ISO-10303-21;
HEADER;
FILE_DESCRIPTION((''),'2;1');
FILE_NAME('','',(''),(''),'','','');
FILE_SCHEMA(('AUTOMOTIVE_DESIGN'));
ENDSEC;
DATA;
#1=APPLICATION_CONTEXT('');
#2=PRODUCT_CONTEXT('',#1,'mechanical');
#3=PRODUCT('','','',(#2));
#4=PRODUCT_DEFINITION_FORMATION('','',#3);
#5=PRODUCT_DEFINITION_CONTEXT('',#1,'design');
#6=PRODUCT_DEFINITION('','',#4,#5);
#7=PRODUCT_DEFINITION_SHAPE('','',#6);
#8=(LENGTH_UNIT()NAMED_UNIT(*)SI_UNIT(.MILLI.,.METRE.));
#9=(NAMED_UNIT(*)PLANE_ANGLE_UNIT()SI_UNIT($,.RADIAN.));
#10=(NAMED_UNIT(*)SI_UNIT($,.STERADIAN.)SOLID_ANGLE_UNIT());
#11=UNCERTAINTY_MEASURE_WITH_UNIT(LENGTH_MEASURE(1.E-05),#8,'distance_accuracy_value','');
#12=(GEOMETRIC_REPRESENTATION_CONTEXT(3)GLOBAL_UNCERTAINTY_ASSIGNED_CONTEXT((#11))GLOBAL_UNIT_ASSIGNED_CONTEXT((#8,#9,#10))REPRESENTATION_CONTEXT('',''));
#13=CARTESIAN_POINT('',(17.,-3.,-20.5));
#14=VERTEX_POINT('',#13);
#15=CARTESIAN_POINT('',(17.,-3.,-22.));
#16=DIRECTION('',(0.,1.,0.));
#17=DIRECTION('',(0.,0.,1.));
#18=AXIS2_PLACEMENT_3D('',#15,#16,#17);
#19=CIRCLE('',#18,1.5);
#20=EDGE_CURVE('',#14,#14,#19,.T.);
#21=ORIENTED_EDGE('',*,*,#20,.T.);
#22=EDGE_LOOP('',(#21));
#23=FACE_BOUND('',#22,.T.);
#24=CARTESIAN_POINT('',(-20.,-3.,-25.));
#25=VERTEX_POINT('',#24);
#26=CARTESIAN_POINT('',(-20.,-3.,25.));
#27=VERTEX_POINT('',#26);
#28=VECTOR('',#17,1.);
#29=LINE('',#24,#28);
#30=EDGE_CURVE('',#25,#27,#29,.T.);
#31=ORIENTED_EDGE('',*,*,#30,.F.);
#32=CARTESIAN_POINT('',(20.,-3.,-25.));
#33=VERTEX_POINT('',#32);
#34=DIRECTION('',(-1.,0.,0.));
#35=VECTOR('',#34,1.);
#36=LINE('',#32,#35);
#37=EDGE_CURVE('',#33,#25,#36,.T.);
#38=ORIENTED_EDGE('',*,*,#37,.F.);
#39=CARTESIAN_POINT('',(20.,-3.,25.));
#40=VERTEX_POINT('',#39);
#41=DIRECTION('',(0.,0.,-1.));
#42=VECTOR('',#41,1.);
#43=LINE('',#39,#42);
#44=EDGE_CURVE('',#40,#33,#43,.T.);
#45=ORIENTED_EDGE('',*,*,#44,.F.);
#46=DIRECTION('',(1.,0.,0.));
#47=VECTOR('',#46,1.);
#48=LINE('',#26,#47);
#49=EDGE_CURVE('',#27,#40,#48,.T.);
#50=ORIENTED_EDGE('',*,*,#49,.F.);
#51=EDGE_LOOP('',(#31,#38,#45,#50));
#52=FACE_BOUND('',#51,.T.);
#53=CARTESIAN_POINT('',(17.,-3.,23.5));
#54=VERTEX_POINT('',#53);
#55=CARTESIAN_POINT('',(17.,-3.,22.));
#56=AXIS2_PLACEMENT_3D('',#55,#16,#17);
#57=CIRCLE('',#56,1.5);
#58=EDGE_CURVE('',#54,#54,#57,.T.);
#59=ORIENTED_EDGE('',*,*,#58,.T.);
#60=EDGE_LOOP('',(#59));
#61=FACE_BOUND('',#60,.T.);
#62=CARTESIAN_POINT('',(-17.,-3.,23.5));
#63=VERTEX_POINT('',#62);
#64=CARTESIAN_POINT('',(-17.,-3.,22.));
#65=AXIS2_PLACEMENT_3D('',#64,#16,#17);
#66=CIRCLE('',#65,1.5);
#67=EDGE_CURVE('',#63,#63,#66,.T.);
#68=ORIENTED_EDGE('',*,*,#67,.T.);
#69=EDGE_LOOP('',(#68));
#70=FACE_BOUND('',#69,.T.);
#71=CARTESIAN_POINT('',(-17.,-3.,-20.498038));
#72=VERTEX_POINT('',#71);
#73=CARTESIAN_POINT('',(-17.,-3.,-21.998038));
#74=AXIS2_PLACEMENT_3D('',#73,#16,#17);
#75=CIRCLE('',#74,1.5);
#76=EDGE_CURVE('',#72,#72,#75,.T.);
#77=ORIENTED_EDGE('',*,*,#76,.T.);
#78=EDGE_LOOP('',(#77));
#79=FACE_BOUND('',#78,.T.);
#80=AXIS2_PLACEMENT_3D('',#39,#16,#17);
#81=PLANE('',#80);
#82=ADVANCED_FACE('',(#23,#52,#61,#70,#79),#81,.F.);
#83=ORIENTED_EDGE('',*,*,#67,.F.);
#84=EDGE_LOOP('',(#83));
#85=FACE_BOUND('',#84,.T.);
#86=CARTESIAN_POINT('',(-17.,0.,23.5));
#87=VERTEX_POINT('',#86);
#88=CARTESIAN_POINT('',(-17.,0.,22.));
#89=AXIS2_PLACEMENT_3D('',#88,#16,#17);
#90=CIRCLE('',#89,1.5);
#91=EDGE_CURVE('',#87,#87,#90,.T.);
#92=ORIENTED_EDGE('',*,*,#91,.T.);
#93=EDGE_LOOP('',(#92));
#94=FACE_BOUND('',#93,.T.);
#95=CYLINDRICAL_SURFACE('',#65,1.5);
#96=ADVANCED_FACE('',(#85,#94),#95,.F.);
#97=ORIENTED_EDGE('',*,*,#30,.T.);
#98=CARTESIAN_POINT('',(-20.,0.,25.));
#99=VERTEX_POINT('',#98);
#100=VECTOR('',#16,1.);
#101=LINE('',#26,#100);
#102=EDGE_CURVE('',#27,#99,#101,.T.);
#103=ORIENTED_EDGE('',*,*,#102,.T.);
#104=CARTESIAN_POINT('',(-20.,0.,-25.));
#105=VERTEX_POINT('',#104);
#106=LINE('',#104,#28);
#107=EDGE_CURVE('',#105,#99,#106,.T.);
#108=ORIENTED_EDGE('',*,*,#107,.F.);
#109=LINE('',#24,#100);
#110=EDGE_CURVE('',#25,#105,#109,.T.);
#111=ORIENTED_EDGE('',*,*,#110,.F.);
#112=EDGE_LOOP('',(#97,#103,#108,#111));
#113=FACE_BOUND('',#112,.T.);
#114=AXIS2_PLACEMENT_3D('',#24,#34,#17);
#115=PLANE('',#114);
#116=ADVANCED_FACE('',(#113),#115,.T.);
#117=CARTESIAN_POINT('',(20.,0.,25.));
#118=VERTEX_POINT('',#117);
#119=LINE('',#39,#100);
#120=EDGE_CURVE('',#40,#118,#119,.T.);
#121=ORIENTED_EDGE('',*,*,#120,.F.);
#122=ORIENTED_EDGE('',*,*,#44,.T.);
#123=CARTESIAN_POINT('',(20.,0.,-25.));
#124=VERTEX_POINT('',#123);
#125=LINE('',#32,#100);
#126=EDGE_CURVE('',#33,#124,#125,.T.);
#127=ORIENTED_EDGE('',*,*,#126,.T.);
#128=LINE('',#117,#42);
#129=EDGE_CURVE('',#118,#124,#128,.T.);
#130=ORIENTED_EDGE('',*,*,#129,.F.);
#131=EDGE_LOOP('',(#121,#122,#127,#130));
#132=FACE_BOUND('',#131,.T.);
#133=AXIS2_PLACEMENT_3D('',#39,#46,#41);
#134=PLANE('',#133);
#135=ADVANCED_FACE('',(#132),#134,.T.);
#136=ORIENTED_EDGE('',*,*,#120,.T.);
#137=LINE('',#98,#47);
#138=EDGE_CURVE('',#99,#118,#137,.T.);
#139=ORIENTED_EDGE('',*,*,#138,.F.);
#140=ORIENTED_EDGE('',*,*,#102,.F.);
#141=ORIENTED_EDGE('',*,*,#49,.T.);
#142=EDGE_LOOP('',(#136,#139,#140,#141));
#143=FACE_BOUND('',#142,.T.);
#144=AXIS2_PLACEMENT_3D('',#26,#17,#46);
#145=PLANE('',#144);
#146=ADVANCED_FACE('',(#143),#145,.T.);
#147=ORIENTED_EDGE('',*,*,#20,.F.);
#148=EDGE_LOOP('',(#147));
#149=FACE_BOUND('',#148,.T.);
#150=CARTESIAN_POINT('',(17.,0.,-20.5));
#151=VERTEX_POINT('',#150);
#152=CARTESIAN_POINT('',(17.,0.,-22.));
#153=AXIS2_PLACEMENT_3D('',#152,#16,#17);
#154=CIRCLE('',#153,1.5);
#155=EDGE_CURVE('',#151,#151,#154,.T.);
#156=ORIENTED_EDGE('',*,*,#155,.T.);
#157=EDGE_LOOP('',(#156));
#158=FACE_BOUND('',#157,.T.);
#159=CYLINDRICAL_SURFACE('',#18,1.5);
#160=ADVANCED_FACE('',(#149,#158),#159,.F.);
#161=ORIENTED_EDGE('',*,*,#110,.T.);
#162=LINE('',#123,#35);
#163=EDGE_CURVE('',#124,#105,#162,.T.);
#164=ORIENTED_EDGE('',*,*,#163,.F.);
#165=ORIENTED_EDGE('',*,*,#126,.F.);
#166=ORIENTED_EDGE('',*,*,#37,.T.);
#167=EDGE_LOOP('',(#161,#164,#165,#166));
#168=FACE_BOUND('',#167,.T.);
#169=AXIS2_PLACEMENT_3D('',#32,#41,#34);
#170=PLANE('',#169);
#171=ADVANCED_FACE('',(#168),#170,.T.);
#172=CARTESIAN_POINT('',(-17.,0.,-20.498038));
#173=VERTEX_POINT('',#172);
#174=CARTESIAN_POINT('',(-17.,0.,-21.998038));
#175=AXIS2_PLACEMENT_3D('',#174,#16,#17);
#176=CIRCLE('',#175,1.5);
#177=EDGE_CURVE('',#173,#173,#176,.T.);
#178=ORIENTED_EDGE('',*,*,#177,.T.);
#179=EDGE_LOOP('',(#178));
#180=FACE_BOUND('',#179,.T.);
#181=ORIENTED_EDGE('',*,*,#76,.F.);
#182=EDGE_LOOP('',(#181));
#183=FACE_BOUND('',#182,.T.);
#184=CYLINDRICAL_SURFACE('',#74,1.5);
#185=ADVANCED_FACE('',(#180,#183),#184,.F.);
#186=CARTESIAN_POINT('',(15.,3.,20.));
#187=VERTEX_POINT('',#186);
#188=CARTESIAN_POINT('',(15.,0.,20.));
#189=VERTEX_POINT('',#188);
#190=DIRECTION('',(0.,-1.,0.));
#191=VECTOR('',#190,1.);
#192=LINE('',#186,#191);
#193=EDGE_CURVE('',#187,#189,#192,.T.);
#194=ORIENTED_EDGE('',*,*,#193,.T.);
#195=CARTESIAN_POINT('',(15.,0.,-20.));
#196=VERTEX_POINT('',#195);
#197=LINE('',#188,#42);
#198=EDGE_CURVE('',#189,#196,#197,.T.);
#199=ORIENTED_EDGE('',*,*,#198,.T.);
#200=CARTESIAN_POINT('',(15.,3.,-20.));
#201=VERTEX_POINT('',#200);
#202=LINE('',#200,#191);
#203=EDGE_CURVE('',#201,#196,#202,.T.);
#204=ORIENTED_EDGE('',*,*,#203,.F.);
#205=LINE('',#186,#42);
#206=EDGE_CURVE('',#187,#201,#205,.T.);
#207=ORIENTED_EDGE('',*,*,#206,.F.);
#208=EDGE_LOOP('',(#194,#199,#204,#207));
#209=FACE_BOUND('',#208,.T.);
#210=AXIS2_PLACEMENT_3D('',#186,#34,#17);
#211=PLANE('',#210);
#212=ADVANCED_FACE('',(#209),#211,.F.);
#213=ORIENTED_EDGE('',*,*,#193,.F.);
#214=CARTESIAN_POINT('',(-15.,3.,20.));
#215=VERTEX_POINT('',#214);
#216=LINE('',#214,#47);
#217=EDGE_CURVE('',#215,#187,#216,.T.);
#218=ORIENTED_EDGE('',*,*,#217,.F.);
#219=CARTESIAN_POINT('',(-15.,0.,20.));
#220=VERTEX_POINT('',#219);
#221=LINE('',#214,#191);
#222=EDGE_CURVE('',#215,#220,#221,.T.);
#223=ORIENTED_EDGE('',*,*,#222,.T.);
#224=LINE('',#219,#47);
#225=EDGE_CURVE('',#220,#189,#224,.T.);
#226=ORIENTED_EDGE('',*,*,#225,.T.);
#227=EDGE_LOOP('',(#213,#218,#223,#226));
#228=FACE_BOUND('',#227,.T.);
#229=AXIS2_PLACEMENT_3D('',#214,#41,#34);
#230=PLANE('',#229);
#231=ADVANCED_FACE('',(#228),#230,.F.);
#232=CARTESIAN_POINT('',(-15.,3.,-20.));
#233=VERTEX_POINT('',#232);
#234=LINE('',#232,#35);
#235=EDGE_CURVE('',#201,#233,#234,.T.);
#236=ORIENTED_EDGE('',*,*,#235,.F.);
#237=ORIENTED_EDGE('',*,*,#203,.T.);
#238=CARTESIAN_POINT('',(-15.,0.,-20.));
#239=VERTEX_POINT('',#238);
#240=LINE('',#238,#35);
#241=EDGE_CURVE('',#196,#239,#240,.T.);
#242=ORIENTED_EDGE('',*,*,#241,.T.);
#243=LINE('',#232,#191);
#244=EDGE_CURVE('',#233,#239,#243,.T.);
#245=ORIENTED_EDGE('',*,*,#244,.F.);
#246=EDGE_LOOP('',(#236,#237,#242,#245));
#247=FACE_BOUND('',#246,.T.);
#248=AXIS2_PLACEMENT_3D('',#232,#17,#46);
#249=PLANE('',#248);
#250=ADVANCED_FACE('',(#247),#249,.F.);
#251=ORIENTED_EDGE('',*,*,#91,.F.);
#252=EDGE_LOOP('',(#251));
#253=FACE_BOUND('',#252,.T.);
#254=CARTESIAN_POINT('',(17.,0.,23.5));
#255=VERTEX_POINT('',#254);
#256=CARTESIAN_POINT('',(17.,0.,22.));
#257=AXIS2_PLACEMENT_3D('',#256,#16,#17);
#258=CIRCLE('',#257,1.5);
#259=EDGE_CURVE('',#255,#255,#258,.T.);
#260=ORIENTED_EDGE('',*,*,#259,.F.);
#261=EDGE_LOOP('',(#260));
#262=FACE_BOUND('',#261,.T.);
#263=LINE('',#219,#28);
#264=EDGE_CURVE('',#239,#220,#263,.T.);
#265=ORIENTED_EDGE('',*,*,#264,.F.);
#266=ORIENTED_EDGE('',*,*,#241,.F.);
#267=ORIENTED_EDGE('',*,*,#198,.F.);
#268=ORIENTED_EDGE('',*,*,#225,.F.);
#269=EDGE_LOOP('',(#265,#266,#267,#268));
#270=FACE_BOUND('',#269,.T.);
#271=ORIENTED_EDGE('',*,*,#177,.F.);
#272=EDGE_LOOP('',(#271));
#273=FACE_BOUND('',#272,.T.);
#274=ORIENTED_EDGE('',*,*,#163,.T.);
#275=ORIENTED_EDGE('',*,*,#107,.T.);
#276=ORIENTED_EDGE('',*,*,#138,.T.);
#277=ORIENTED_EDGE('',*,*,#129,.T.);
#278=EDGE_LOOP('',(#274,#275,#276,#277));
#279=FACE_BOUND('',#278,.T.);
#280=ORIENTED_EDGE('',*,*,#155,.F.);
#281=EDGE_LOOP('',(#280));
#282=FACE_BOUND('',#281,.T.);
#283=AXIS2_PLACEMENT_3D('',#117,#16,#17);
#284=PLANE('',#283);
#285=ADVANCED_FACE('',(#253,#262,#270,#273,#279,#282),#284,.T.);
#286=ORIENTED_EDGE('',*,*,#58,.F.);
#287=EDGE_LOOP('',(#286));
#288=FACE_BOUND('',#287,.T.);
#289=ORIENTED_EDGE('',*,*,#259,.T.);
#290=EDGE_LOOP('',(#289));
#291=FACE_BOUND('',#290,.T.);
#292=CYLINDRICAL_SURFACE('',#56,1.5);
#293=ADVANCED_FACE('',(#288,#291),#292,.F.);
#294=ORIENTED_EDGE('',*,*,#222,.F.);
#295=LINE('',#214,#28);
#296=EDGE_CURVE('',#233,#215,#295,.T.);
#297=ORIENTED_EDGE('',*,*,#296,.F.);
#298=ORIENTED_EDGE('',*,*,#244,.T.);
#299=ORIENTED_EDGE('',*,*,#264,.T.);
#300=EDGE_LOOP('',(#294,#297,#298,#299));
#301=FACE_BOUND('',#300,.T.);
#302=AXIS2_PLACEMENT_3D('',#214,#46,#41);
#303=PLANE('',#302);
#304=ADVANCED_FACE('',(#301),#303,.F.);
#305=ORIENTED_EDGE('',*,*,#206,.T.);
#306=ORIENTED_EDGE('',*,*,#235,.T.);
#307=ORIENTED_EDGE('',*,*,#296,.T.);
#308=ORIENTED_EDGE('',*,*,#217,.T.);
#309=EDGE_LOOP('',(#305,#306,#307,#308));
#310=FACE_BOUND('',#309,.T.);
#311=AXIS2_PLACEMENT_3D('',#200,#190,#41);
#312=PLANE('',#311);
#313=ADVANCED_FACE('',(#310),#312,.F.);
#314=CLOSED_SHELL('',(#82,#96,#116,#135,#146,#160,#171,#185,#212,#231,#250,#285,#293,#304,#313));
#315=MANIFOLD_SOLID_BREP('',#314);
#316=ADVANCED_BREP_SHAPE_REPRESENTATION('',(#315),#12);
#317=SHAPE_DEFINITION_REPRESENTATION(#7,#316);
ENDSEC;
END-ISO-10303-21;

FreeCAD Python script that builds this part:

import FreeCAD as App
import Part
import Sketcher

V = App.Vector
Q = App.Units.Quantity


def add_polygon(sketch, points):
    """Adds a closed chain of lines whose ends are joined by coincident constraints."""
    first, n = sketch.GeometryCount, len(points)
    for a, b in zip(points, points[1:] + points[:1]):
        sketch.addGeometry(Part.LineSegment(App.Vector(*a, 0), App.Vector(*b, 0)), False)
    for i in range(n):
        sketch.addConstraint(Sketcher.Constraint("Coincident", first + i, 2, first + (i + 1) % n, 1))

doc = App.newDocument("Part")
body = doc.addObject("PartDesign::Body", "Body")

# Sketch on XZ plane
sketch1 = body.newObject("Sketcher::SketchObject", "Sketch")
sketch1.AttachmentSupport = (doc.getObject("XZ_Plane"), [""])
sketch1.MapMode = "FlatFace"
add_polygon(sketch1, [(-15, -20), (-15, 20), (15, 20), (15, -20)])  # lines 0-3
sketch1.addConstraint([
    Sketcher.Constraint("Vertical", 0),
    Sketcher.Constraint("Horizontal", 1),
    Sketcher.Constraint("Vertical", 2),
    Sketcher.Constraint("Horizontal", 3),
    Sketcher.Constraint("Symmetric", 0, 2, 2, 2, -1, 1),
    Sketcher.Constraint("DistanceX", 1, 1, 1, 2, Q("30 mm")),
    Sketcher.Constraint("DistanceY", 0, 1, 0, 2, Q("40 mm")),
])
pad1 = body.newObject("PartDesign::Pad", "Pad")
pad1.Profile = sketch1
pad1.Length = 3
pad1.Reversed = True

# Sketch on XZ plane
sketch2 = body.newObject("Sketcher::SketchObject", "Sketch001")
sketch2.AttachmentSupport = (doc.getObject("XZ_Plane"), [""])
sketch2.MapMode = "FlatFace"
add_polygon(sketch2, [(-20, -25), (-20, 25), (20, 25), (20, -25)])  # lines 0-3
sketch2.addGeometry(Part.Circle(V(-17, 22, 0), V(0, 0, 1), 1.5), False)  # 4
sketch2.addGeometry(Part.Circle(V(17, 22, 0), V(0, 0, 1), 1.5), False)  # 5
sketch2.addGeometry(Part.Circle(V(-17, -22, 0), V(0, 0, 1), 1.5), False)  # 6
sketch2.addGeometry(Part.Circle(V(17, -22, 0), V(0, 0, 1), 1.5), False)  # 7
sketch2.addConstraint([
    Sketcher.Constraint("Vertical", 0),
    Sketcher.Constraint("Horizontal", 1),
    Sketcher.Constraint("Vertical", 2),
    Sketcher.Constraint("Horizontal", 3),
    Sketcher.Constraint("Equal", 4, 5),
    Sketcher.Constraint("Equal", 5, 6),
    Sketcher.Constraint("Equal", 6, 7),
    Sketcher.Constraint("Symmetric", 4, 3, 7, 3, -1, 1),
    Sketcher.Constraint("Symmetric", 0, 2, 2, 2, -1, 1),
    Sketcher.Constraint("Symmetric", 4, 3, 5, 3, -2),
    Sketcher.Constraint("Vertical", 4, 3, 6, 3),
    Sketcher.Constraint("Diameter", 4, Q("3 mm")),
    Sketcher.Constraint("DistanceX", 1, 1, 1, 2, Q("40 mm")),
    Sketcher.Constraint("DistanceY", 0, 1, 0, 2, Q("50 mm")),
    Sketcher.Constraint("DistanceX", 4, 3, -1, 1, Q("17 mm")),
    Sketcher.Constraint("DistanceY", -1, 1, 4, 3, Q("22 mm")),
    Sketcher.Constraint("DistanceY", 6, 3, -1, 1, Q("21.998038 mm")),
])
pad2 = body.newObject("PartDesign::Pad", "Pad001")
pad2.Profile = sketch2
pad2.Length = 3

doc.recompute()
